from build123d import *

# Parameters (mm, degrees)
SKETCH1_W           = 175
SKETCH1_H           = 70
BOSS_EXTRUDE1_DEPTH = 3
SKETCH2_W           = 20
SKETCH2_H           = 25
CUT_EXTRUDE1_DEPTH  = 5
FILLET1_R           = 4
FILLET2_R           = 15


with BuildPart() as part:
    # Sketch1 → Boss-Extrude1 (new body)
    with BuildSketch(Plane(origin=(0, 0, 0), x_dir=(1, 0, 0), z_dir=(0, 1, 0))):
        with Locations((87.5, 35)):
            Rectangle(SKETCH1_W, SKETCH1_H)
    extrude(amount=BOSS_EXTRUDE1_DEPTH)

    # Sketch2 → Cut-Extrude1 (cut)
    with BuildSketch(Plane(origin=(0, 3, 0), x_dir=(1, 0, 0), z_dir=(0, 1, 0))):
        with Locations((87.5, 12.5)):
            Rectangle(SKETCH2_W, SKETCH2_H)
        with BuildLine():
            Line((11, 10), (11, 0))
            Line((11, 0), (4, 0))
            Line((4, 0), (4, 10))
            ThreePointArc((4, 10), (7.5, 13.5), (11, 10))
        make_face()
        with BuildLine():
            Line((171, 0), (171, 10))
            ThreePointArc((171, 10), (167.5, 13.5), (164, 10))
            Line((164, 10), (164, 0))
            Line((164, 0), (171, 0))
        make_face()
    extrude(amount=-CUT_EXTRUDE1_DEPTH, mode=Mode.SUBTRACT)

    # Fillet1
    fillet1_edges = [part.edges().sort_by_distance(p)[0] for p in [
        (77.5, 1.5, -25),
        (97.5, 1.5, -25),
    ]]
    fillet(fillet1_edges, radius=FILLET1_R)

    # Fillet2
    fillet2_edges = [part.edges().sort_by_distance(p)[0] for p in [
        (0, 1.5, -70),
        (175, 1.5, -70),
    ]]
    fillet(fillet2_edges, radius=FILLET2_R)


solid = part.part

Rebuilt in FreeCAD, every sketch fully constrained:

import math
import FreeCAD as App
import Part
import Sketcher
from FreeCAD import Vector


def edges_at(feature, points):
    """Names of the edges that pass closest to the given points."""
    edges = feature.Shape.Edges
    near = lambda p: min(range(len(edges)), key=lambda i: edges[i].distToShape(Part.Vertex(*p))[0])
    return sorted({f"Edge{near(p) + 1}" for p in points})


def add_polygon(sketch, points):
    """Adds a closed chain of lines whose ends are joined by coincident constraints."""
    first, n = sketch.GeometryCount, len(points)
    for a, b in zip(points, points[1:] + points[:1]):
        sketch.addGeometry(Part.LineSegment(App.Vector(*a, 0), App.Vector(*b, 0)), False)
    for i in range(n):
        sketch.addConstraint(Sketcher.Constraint("Coincident", first + i, 2, first + (i + 1) % n, 1))

doc = App.newDocument("Part")
body = doc.addObject("PartDesign::Body", "Body")

# Sketch on XZ plane
sketch1 = body.newObject("Sketcher::SketchObject", "Sketch")
sketch1.AttachmentSupport = (doc.getObject("XZ_Plane"), [""])
sketch1.MapMode = "FlatFace"
add_polygon(sketch1, [(0, -70), (0, 0), (175, 0), (175, -70)])  # lines 0-3
sketch1.addConstraint(Sketcher.Constraint("Vertical", 0))
sketch1.addConstraint(Sketcher.Constraint("Horizontal", 1))
sketch1.addConstraint(Sketcher.Constraint("Vertical", 2))
sketch1.addConstraint(Sketcher.Constraint("Horizontal", 3))
sketch1.addConstraint(Sketcher.Constraint("Coincident", 0, 2, -1, 1))
sketch1.addConstraint(Sketcher.Constraint("DistanceX", 1, 1, 1, 2, 175.0))
sketch1.addConstraint(Sketcher.Constraint("DistanceY", 0, 1, 0, 2, 70.0))
pad1 = body.newObject("PartDesign::Pad", "Pad")
pad1.Profile = sketch1
pad1.Length = 3
pad1.Reversed = True

# Sketch on XZ plane
sketch2 = body.newObject("Sketcher::SketchObject", "Sketch001")
sketch2.AttachmentSupport = (doc.getObject("XZ_Plane"), [""])
sketch2.MapMode = "FlatFace"
sketch2.AttachmentOffset = App.Placement(Vector(0, 0, -3), App.Rotation())
add_polygon(sketch2, [(77.5, -25), (77.5, 0), (97.5, 0), (97.5, -25)])  # lines 0-3
sketch2.addGeometry(Part.LineSegment(Vector(11, 0, 0), Vector(11, -10, 0)), False)  # 4
sketch2.addGeometry(Part.ArcOfCircle(Part.Circle(Vector(7.5, -10, 0), Vector(0, 0, 1), 3.5), math.radians(180), math.radians(360)), False)  # 5
sketch2.addGeometry(Part.LineSegment(Vector(4, -10, 0), Vector(4, 0, 0)), False)  # 6
sketch2.addGeometry(Part.LineSegment(Vector(4, 0, 0), Vector(11, 0, 0)), False)  # 7
sketch2.addGeometry(Part.LineSegment(Vector(171, 0, 0), Vector(171, -10, 0)), False)  # 8
sketch2.addGeometry(Part.ArcOfCircle(Part.Circle(Vector(167.5, -10, 0), Vector(0, 0, 1), 3.5), math.radians(180), math.radians(360)), False)  # 9
sketch2.addGeometry(Part.LineSegment(Vector(164, -10, 0), Vector(164, 0, 0)), False)  # 10
sketch2.addGeometry(Part.LineSegment(Vector(164, 0, 0), Vector(171, 0, 0)), False)  # 11
sketch2.addConstraint(Sketcher.Constraint("Tangent", 4, 2, 5, 2))
sketch2.addConstraint(Sketcher.Constraint("Tangent", 5, 1, 6, 1))
sketch2.addConstraint(Sketcher.Constraint("Coincident", 6, 2, 7, 1))
sketch2.addConstraint(Sketcher.Constraint("Coincident", 7, 2, 4, 1))
sketch2.addConstraint(Sketcher.Constraint("Tangent", 8, 2, 9, 2))
sketch2.addConstraint(Sketcher.Constraint("Tangent", 9, 1, 10, 1))
sketch2.addConstraint(Sketcher.Constraint("Coincident", 10, 2, 11, 1))
sketch2.addConstraint(Sketcher.Constraint("Coincident", 11, 2, 8, 1))
sketch2.addConstraint(Sketcher.Constraint("Vertical", 0))
sketch2.addConstraint(Sketcher.Constraint("Horizontal", 1))
sketch2.addConstraint(Sketcher.Constraint("Vertical", 2))
sketch2.addConstraint(Sketcher.Constraint("Horizontal", 3))
sketch2.addConstraint(Sketcher.Constraint("Vertical", 4))
sketch2.addConstraint(Sketcher.Constraint("Vertical", 6))
sketch2.addConstraint(Sketcher.Constraint("Horizontal", 7))
sketch2.addConstraint(Sketcher.Constraint("Vertical", 8))
sketch2.addConstraint(Sketcher.Constraint("Vertical", 10))
sketch2.addConstraint(Sketcher.Constraint("Horizontal", 11))
sketch2.addConstraint(Sketcher.Constraint("Equal", 5, 9))
sketch2.addConstraint(Sketcher.Constraint("PointOnObject", 0, 2, -1))
sketch2.addConstraint(Sketcher.Constraint("PointOnObject", 6, 2, -1))
sketch2.addConstraint(Sketcher.Constraint("PointOnObject", 10, 2, -1))
sketch2.addConstraint(Sketcher.Constraint("Horizontal", 5, 3, 9, 3))
sketch2.addConstraint(Sketcher.Constraint("Radius", 5, 3.5))
sketch2.addConstraint(Sketcher.Constraint("DistanceX", 1, 1, 1, 2, 20.0))
sketch2.addConstraint(Sketcher.Constraint("DistanceY", 0, 1, 0, 2, 25.0))
sketch2.addConstraint(Sketcher.Constraint("DistanceY", 4, 2, 4, 1, 10.0))
sketch2.addConstraint(Sketcher.Constraint("DistanceX", -1, 1, 4, 2, 11.0))
sketch2.addConstraint(Sketcher.Constraint("DistanceX", -1, 1, 8, 2, 171.0))
sketch2.addConstraint(Sketcher.Constraint("DistanceX", 5, 3, 0, 2, 70.0))
pocket1 = body.newObject("PartDesign::Pocket", "Pocket")
pocket1.Profile = sketch2
pocket1.Length = 5
pocket1.Reversed = True
doc.recompute()

fillet = body.newObject("PartDesign::Fillet", "Fillet")
fillet.Base = (pocket1, edges_at(pocket1, [(77.5, 1.5, -25), (97.5, 1.5, -25)]))
fillet.Radius = 4
doc.recompute()

fillet2 = body.newObject("PartDesign::Fillet", "Fillet001")
fillet2.Base = (fillet, edges_at(fillet, [(0, 1.5, -70), (175, 1.5, -70)]))
fillet2.Radius = 15

doc.recompute()
